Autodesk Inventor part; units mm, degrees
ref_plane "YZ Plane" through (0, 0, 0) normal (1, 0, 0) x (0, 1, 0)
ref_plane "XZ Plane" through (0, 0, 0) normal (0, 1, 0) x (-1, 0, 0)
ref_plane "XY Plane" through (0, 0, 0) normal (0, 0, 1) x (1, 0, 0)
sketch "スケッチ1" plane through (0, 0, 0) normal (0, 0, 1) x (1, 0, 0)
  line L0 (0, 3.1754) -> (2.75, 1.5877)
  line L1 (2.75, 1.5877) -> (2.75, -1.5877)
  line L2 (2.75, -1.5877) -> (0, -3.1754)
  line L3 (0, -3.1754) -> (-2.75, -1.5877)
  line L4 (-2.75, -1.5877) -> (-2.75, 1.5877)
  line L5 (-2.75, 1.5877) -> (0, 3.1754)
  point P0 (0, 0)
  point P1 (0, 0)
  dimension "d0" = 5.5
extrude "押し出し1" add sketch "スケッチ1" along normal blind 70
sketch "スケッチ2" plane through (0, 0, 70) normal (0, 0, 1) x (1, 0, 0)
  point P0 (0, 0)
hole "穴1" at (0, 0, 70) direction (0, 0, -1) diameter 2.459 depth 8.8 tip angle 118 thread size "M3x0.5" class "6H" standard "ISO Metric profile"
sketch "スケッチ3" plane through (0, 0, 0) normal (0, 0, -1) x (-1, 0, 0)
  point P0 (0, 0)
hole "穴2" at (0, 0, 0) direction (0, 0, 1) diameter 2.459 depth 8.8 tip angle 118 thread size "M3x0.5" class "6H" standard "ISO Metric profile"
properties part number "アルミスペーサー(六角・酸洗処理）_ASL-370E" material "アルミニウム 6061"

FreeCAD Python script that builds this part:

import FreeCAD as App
import Part
import Sketcher

V = App.Vector
Q = App.Units.Quantity

doc = App.newDocument("Part")
body = doc.addObject("PartDesign::Body", "Body")

# Sketch on XY plane
sketch1 = doc.addObject("Sketcher::SketchObject", "Sketch")
body.addObject(sketch1)
sketch1.AttachmentSupport = (doc.XY_Plane, [""])
sketch1.MapMode = "FlatFace"
sketch1.addGeometry([
    Part.LineSegment(V(2.8, 1.6, 0), V(0, 3.2, 0)),  # 0
    Part.LineSegment(V(0, 3.2, 0), V(-2.8, 1.6, 0)),  # 1
    Part.LineSegment(V(-2.8, 1.6, 0), V(-2.8, -1.6, 0)),  # 2
    Part.LineSegment(V(-2.8, -1.6, 0), V(0, -3.2, 0)),  # 3
    Part.LineSegment(V(0, -3.2, 0), V(2.8, -1.6, 0)),  # 4
    Part.LineSegment(V(2.8, -1.6, 0), V(2.8, 1.6, 0)),  # 5
], False)
sketch1.addConstraint([
    Sketcher.Constraint("Coincident", 0, 2, 1, 1),
    Sketcher.Constraint("Coincident", 1, 2, 2, 1),
    Sketcher.Constraint("Coincident", 2, 2, 3, 1),
    Sketcher.Constraint("Coincident", 3, 2, 4, 1),
    Sketcher.Constraint("Coincident", 4, 2, 5, 1),
    Sketcher.Constraint("Coincident", 5, 2, 0, 1),
    Sketcher.Constraint("Vertical", 2),
    Sketcher.Constraint("Vertical", 5),
    Sketcher.Constraint("Symmetric", 0, 2, 3, 2, -1, 1),
    Sketcher.Constraint("Symmetric", 1, 2, 4, 2, -1, 1),
    Sketcher.Constraint("PointOnObject", 0, 2, -2),
    Sketcher.Constraint("Parallel", 0, 3),
    Sketcher.Constraint("Horizontal", 2, 2, 4, 2),
    Sketcher.Constraint("DistanceX", 2, 2, 4, 2, 5.5),
    Sketcher.Constraint("Angle", 0, Q("150.0002 deg")),
    Sketcher.Constraint("DistanceY", 2, 2, 2, 1, 3.1754),
])
pad1 = doc.addObject("PartDesign::Pad", "Pad")
body.addObject(pad1)
pad1.Profile = sketch1
pad1.Length = 70

# Sketch on XY plane
sketch2 = doc.addObject("Sketcher::SketchObject", "Sketch001")
body.addObject(sketch2)
sketch2.AttachmentSupport = (doc.XY_Plane, [""])
sketch2.MapMode = "FlatFace"
sketch2.AttachmentOffset = App.Placement(V(0, 0, 70), App.Rotation())
sketch2.addGeometry(Part.Circle(V(0, 0, 0), V(0, 0, 1), 1.2), False)
sketch2.addConstraint([
    Sketcher.Constraint("Coincident", 0, 3, -1, 1),
    Sketcher.Constraint("Diameter", 0, 2.459),
])
doc.recompute()
hole = doc.addObject("PartDesign::Hole", "Hole")
body.addObject(hole)
hole.Profile = sketch2
hole.ThreadType = "None"
hole.Diameter = 2.459
hole.DepthType = "Dimension"
hole.Depth = 8.8
hole.DrillPoint = "Angled"
hole.DrillPointAngle = 118

# Sketch on XY plane
sketch3 = doc.addObject("Sketcher::SketchObject", "Sketch002")
body.addObject(sketch3)
sketch3.AttachmentSupport = (doc.XY_Plane, [""])
sketch3.MapMode = "FlatFace"
sketch3.addGeometry(Part.Circle(V(0, 0, 0), V(0, 0, 1), 1.2), False)
sketch3.addConstraint([
    Sketcher.Constraint("Coincident", 0, 3, -1, 1),
    Sketcher.Constraint("Diameter", 0, 2.459),
])
doc.recompute()
hole2 = doc.addObject("PartDesign::Hole", "Hole001")
body.addObject(hole2)
hole2.Profile = sketch3
hole2.ThreadType = "None"
hole2.Diameter = 2.459
hole2.DepthType = "Dimension"
hole2.Depth = 8.8
hole2.DrillPoint = "Angled"
hole2.DrillPointAngle = 118
hole2.Reversed = True

doc.recompute()
